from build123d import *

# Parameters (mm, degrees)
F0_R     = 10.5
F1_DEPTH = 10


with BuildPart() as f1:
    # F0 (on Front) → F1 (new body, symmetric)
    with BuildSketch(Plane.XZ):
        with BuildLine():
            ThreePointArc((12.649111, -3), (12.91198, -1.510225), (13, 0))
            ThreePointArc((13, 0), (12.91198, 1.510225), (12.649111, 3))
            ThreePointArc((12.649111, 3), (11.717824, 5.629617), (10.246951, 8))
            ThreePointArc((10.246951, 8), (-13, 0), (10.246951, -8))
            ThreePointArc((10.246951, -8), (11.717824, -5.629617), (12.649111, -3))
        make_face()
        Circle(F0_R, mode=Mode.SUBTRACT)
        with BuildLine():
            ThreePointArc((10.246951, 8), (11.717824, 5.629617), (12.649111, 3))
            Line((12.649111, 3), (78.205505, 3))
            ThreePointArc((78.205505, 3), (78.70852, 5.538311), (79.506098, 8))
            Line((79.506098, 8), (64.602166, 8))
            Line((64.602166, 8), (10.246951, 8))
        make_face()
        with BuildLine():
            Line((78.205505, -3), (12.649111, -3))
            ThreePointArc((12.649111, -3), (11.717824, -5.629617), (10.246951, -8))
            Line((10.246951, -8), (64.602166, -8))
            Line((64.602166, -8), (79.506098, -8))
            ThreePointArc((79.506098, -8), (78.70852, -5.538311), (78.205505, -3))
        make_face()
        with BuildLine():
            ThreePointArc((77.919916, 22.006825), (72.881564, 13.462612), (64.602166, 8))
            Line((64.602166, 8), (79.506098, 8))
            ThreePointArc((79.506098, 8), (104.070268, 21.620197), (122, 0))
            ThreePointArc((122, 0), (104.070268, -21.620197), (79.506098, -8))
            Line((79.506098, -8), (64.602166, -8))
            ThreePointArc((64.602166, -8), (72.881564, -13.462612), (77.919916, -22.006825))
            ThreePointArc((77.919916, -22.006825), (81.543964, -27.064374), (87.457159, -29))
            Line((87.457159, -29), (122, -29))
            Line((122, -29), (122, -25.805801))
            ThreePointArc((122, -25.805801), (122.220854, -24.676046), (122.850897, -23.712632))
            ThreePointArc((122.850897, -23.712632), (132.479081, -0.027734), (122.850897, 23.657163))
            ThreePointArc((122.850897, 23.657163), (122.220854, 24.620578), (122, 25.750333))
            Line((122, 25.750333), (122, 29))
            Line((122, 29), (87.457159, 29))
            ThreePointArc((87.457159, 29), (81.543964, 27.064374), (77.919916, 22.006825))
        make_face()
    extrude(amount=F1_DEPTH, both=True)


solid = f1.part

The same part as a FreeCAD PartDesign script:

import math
import FreeCAD as App
import Part
import Sketcher

V = App.Vector

doc = App.newDocument("Part")
body = doc.addObject("PartDesign::Body", "Body")

# Sketch on XZ plane
sketch1 = doc.addObject("Sketcher::SketchObject", "Sketch")
body.addObject(sketch1)
sketch1.AttachmentSupport = (doc.XZ_Plane, [""])
sketch1.MapMode = "FlatFace"
sketch1.addGeometry(Part.LineSegment(V(64.602166, 8, 0), V(10.246951, 8, 0)), False)
sketch1.addGeometry(Part.ArcOfCircle(Part.Circle(V(0, 0, 0), V(0, 0, 1), 13), math.radians(37.979872), math.radians(322.020128)), False)
sketch1.addGeometry(Part.LineSegment(V(10.246951, -8, 0), V(64.602166, -8, 0)), False)
sketch1.addGeometry(Part.ArcOfCircle(Part.Circle(V(56.937983, -28.621838, 0), V(0, 0, 1), 21.999998), math.radians(17.498596), math.radians(69.61223)), False)
sketch1.addGeometry(Part.ArcOfCircle(Part.Circle(V(87.457159, -19.000001, 0), V(0, 0, 1), 9.999999), math.radians(-162.501402), math.radians(-89.999997)), False)
sketch1.addGeometry(Part.LineSegment(V(87.457159, -29, 0), V(122, -29, 0)), False)
sketch1.addGeometry(Part.LineSegment(V(122, -29, 0), V(122, -25.805801, 0)), False)
sketch1.addGeometry(Part.ArcOfCircle(Part.Circle(V(125.000003, -25.805802, 0), V(0, 0, 1), 3.000003), math.radians(135.755417), math.radians(179.999981)), False)
sketch1.addGeometry(Part.ArcOfCircle(Part.Circle(V(98.5331, -0.027734, 0), V(0, 0, 1), 33.945981), math.radians(-44.244618), math.radians(44.244618)), False)
sketch1.addGeometry(Part.ArcOfCircle(Part.Circle(V(125.000007, 25.750335, 0), V(0, 0, 1), 3.000007), math.radians(-179.999963), math.radians(-135.755454)), False)
sketch1.addGeometry(Part.LineSegment(V(122, 25.750333, 0), V(122, 29, 0)), False)
sketch1.addGeometry(Part.LineSegment(V(122, 29, 0), V(87.457159, 29, 0)), False)
sketch1.addGeometry(Part.ArcOfCircle(Part.Circle(V(87.457159, 19.000001, 0), V(0, 0, 1), 9.999999), math.radians(89.999997), math.radians(162.501402)), False)
sketch1.addGeometry(Part.ArcOfCircle(Part.Circle(V(56.937983, 28.621838, 0), V(0, 0, 1), 21.999998), math.radians(-69.61223), math.radians(-17.498596)), False)
sketch1.addGeometry(Part.ArcOfCircle(Part.Circle(V(0.000014, -0.000003, 0), V(0, 0, 1), 12.999986), math.radians(-13.342364), math.radians(0.000014)), False)
sketch1.addGeometry(Part.ArcOfCircle(Part.Circle(V(0.000014, 0.000003, 0), V(0, 0, 1), 12.999986), math.radians(-0.000014), math.radians(13.342364)), False)
sketch1.addGeometry(Part.LineSegment(V(12.649111, 3, 0), V(78.205505, 3, 0)), False)
sketch1.addGeometry(Part.ArcOfCircle(Part.Circle(V(100.000021, -0.000005, 0), V(0, 0, 1), 22.000021), math.radians(158.676322), math.radians(172.162516)), False)
sketch1.addGeometry(Part.ArcOfCircle(Part.Circle(V(100, 0, 0), V(0, 0, 1), 22), math.radians(0.000001), math.radians(158.676313)), False)
sketch1.addGeometry(Part.ArcOfCircle(Part.Circle(V(100, 0, 0), V(0, 0, 1), 22), math.radians(-158.676313), math.radians(-0.000001)), False)
sketch1.addGeometry(Part.ArcOfCircle(Part.Circle(V(100.000021, 0.000005, 0), V(0, 0, 1), 22.000021), math.radians(-172.162516), math.radians(-158.676322)), False)
sketch1.addGeometry(Part.LineSegment(V(78.205505, -3, 0), V(12.649111, -3, 0)), False)
sketch1.addGeometry(Part.Circle(V(0, 0, 0), V(0, 0, 1), 10.5), False)
sketch1.addConstraint(Sketcher.Constraint("Coincident", 0, 2, 1, 1))
sketch1.addConstraint(Sketcher.Constraint("Coincident", 1, 2, 2, 1))
sketch1.addConstraint(Sketcher.Constraint("Coincident", 2, 2, 3, 2))
sketch1.addConstraint(Sketcher.Constraint("Coincident", 3, 1, 4, 1))
sketch1.addConstraint(Sketcher.Constraint("Coincident", 4, 2, 5, 1))
sketch1.addConstraint(Sketcher.Constraint("Coincident", 5, 2, 6, 1))
sketch1.addConstraint(Sketcher.Constraint("Coincident", 6, 2, 7, 2))
sketch1.addConstraint(Sketcher.Constraint("Coincident", 7, 1, 8, 1))
sketch1.addConstraint(Sketcher.Constraint("Coincident", 8, 2, 9, 2))
sketch1.addConstraint(Sketcher.Constraint("Coincident", 9, 1, 10, 1))
sketch1.addConstraint(Sketcher.Constraint("Coincident", 10, 2, 11, 1))
sketch1.addConstraint(Sketcher.Constraint("Coincident", 11, 2, 12, 1))
sketch1.addConstraint(Sketcher.Constraint("Coincident", 12, 2, 13, 2))
sketch1.addConstraint(Sketcher.Constraint("Coincident", 13, 1, 0, 1))
sketch1.addConstraint(Sketcher.Constraint("Coincident", 14, 2, 15, 1))
sketch1.addConstraint(Sketcher.Constraint("Coincident", 15, 2, 16, 1))
sketch1.addConstraint(Sketcher.Constraint("Coincident", 16, 2, 17, 2))
sketch1.addConstraint(Sketcher.Constraint("Coincident", 17, 1, 18, 2))
sketch1.addConstraint(Sketcher.Constraint("Coincident", 18, 1, 19, 2))
sketch1.addConstraint(Sketcher.Constraint("Coincident", 19, 1, 20, 2))
sketch1.addConstraint(Sketcher.Constraint("Coincident", 20, 1, 21, 1))
sketch1.addConstraint(Sketcher.Constraint("Coincident", 21, 2, 14, 1))
sketch1.addConstraint(Sketcher.Constraint("Horizontal", 0))
sketch1.addConstraint(Sketcher.Constraint("Horizontal", 2))
sketch1.addConstraint(Sketcher.Constraint("Horizontal", 5))
sketch1.addConstraint(Sketcher.Constraint("Vertical", 6))
sketch1.addConstraint(Sketcher.Constraint("Vertical", 10))
sketch1.addConstraint(Sketcher.Constraint("Horizontal", 11))
sketch1.addConstraint(Sketcher.Constraint("Horizontal", 16))
sketch1.addConstraint(Sketcher.Constraint("Horizontal", 21))
sketch1.addConstraint(Sketcher.Constraint("Coincident", 1, 3, -1, 1))
sketch1.addConstraint(Sketcher.Constraint("Coincident", 22, 3, -1, 1))
sketch1.addConstraint(Sketcher.Constraint("Coincident", 15, 3, 14, 3))
sketch1.addConstraint(Sketcher.Constraint("Coincident", 19, 3, 18, 3))
sketch1.addConstraint(Sketcher.Constraint("Coincident", 20, 3, 17, 3))
sketch1.addConstraint(Sketcher.Constraint("PointOnObject", 18, 3, -1))
sketch1.addConstraint(Sketcher.Constraint("PointOnObject", 14, 2, -1))
sketch1.addConstraint(Sketcher.Constraint("PointOnObject", 18, 1, -1))
sketch1.addConstraint(Sketcher.Constraint("Diameter", 22, 21.0))
sketch1.addConstraint(Sketcher.Constraint("Radius", 1, 13.0))
sketch1.addConstraint(Sketcher.Constraint("Radius", 4, 9.999999))
sketch1.addConstraint(Sketcher.Constraint("Radius", 12, 9.999999))
sketch1.addConstraint(Sketcher.Constraint("Radius", 18, 22.0))
sketch1.addConstraint(Sketcher.Constraint("DistanceY", 4, 3, -1, 1, 19.000001))
sketch1.addConstraint(Sketcher.Constraint("DistanceY", -1, 1, 12, 3, 19.000001))
sketch1.addConstraint(Sketcher.Constraint("DistanceX", -1, 1, 18, 3, 100.0))
sketch1.addConstraint(Sketcher.Constraint("DistanceY", -1, 1, 0, 2, 8.0))
sketch1.addConstraint(Sketcher.Constraint("DistanceY", 1, 2, -1, 1, 8.0))
sketch1.addConstraint(Sketcher.Constraint("DistanceX", -1, 1, 5, 2, 122.0))
sketch1.addConstraint(Sketcher.Constraint("DistanceX", -1, 1, 9, 1, 122.0))
sketch1.addConstraint(Sketcher.Constraint("DistanceX", -1, 1, 14, 2, 13.0))
sketch1.addConstraint(Sketcher.Constraint("DistanceY", -1, 1, 15, 2, 3.0))
sketch1.addConstraint(Sketcher.Constraint("DistanceY", -1, 1, 17, 1, 8.0))
sketch1.addConstraint(Sketcher.Constraint("DistanceY", 19, 1, -1, 1, 8.0))
sketch1.addConstraint(Sketcher.Constraint("DistanceY", 20, 1, -1, 1, 3.0))
sketch1.addConstraint(Sketcher.Constraint("Radius", 8, 33.945981))
sketch1.addConstraint(Sketcher.Constraint("Radius", 17, 22.000021))
sketch1.addConstraint(Sketcher.Constraint("Radius", 20, 22.000021))
sketch1.addConstraint(Sketcher.Constraint("DistanceY", 6, 1, 6, 2, 3.194199))
sketch1.addConstraint(Sketcher.Constraint("Radius", 3, 21.999998))
sketch1.addConstraint(Sketcher.Constraint("Radius", 7, 3.000003))
sketch1.addConstraint(Sketcher.Constraint("Radius", 9, 3.000007))
sketch1.addConstraint(Sketcher.Constraint("Radius", 13, 21.999998))
sketch1.addConstraint(Sketcher.Constraint("Radius", 14, 12.999986))
sketch1.addConstraint(Sketcher.Constraint("DistanceX", 5, 1, 5, 2, 34.542841))
sketch1.addConstraint(Sketcher.Constraint("DistanceX", 11, 2, 11, 1, 34.542841))
sketch1.addConstraint(Sketcher.Constraint("DistanceX", -1, 1, 8, 3, 98.5331))
sketch1.addConstraint(Sketcher.Constraint("DistanceY", 7, 3, 4, 3, 6.805801))
sketch1.addConstraint(Sketcher.Constraint("DistanceX", 0, 2, 0, 1, 54.355215))
sketch1.addConstraint(Sketcher.Constraint("DistanceX", 2, 1, 2, 2, 54.355215))
sketch1.addConstraint(Sketcher.Constraint("DistanceX", 16, 1, 16, 2, 65.556394))
sketch1.addConstraint(Sketcher.Constraint("DistanceY", 10, 1, 10, 2, 3.249667))
sketch1.addConstraint(Sketcher.Constraint("DistanceX", -1, 1, 4, 3, 87.457159))
sketch1.addConstraint(Sketcher.Constraint("DistanceX", -1, 1, 12, 3, 87.457159))
sketch1.addConstraint(Sketcher.Constraint("DistanceX", 2, 2, 3, 1, 13.31775))
sketch1.addConstraint(Sketcher.Constraint("DistanceY", 6, 2, 7, 1, 2.093169))
sketch1.addConstraint(Sketcher.Constraint("DistanceX", 8, 2, 9, 3, 2.14911))
sketch1.addConstraint(Sketcher.Constraint("DistanceY", 8, 3, 12, 2, 22.034559))
pad1 = doc.addObject("PartDesign::Pad", "Pad")
body.addObject(pad1)
pad1.Profile = sketch1
pad1.Length = 20
pad1.Midplane = True

doc.recompute()
